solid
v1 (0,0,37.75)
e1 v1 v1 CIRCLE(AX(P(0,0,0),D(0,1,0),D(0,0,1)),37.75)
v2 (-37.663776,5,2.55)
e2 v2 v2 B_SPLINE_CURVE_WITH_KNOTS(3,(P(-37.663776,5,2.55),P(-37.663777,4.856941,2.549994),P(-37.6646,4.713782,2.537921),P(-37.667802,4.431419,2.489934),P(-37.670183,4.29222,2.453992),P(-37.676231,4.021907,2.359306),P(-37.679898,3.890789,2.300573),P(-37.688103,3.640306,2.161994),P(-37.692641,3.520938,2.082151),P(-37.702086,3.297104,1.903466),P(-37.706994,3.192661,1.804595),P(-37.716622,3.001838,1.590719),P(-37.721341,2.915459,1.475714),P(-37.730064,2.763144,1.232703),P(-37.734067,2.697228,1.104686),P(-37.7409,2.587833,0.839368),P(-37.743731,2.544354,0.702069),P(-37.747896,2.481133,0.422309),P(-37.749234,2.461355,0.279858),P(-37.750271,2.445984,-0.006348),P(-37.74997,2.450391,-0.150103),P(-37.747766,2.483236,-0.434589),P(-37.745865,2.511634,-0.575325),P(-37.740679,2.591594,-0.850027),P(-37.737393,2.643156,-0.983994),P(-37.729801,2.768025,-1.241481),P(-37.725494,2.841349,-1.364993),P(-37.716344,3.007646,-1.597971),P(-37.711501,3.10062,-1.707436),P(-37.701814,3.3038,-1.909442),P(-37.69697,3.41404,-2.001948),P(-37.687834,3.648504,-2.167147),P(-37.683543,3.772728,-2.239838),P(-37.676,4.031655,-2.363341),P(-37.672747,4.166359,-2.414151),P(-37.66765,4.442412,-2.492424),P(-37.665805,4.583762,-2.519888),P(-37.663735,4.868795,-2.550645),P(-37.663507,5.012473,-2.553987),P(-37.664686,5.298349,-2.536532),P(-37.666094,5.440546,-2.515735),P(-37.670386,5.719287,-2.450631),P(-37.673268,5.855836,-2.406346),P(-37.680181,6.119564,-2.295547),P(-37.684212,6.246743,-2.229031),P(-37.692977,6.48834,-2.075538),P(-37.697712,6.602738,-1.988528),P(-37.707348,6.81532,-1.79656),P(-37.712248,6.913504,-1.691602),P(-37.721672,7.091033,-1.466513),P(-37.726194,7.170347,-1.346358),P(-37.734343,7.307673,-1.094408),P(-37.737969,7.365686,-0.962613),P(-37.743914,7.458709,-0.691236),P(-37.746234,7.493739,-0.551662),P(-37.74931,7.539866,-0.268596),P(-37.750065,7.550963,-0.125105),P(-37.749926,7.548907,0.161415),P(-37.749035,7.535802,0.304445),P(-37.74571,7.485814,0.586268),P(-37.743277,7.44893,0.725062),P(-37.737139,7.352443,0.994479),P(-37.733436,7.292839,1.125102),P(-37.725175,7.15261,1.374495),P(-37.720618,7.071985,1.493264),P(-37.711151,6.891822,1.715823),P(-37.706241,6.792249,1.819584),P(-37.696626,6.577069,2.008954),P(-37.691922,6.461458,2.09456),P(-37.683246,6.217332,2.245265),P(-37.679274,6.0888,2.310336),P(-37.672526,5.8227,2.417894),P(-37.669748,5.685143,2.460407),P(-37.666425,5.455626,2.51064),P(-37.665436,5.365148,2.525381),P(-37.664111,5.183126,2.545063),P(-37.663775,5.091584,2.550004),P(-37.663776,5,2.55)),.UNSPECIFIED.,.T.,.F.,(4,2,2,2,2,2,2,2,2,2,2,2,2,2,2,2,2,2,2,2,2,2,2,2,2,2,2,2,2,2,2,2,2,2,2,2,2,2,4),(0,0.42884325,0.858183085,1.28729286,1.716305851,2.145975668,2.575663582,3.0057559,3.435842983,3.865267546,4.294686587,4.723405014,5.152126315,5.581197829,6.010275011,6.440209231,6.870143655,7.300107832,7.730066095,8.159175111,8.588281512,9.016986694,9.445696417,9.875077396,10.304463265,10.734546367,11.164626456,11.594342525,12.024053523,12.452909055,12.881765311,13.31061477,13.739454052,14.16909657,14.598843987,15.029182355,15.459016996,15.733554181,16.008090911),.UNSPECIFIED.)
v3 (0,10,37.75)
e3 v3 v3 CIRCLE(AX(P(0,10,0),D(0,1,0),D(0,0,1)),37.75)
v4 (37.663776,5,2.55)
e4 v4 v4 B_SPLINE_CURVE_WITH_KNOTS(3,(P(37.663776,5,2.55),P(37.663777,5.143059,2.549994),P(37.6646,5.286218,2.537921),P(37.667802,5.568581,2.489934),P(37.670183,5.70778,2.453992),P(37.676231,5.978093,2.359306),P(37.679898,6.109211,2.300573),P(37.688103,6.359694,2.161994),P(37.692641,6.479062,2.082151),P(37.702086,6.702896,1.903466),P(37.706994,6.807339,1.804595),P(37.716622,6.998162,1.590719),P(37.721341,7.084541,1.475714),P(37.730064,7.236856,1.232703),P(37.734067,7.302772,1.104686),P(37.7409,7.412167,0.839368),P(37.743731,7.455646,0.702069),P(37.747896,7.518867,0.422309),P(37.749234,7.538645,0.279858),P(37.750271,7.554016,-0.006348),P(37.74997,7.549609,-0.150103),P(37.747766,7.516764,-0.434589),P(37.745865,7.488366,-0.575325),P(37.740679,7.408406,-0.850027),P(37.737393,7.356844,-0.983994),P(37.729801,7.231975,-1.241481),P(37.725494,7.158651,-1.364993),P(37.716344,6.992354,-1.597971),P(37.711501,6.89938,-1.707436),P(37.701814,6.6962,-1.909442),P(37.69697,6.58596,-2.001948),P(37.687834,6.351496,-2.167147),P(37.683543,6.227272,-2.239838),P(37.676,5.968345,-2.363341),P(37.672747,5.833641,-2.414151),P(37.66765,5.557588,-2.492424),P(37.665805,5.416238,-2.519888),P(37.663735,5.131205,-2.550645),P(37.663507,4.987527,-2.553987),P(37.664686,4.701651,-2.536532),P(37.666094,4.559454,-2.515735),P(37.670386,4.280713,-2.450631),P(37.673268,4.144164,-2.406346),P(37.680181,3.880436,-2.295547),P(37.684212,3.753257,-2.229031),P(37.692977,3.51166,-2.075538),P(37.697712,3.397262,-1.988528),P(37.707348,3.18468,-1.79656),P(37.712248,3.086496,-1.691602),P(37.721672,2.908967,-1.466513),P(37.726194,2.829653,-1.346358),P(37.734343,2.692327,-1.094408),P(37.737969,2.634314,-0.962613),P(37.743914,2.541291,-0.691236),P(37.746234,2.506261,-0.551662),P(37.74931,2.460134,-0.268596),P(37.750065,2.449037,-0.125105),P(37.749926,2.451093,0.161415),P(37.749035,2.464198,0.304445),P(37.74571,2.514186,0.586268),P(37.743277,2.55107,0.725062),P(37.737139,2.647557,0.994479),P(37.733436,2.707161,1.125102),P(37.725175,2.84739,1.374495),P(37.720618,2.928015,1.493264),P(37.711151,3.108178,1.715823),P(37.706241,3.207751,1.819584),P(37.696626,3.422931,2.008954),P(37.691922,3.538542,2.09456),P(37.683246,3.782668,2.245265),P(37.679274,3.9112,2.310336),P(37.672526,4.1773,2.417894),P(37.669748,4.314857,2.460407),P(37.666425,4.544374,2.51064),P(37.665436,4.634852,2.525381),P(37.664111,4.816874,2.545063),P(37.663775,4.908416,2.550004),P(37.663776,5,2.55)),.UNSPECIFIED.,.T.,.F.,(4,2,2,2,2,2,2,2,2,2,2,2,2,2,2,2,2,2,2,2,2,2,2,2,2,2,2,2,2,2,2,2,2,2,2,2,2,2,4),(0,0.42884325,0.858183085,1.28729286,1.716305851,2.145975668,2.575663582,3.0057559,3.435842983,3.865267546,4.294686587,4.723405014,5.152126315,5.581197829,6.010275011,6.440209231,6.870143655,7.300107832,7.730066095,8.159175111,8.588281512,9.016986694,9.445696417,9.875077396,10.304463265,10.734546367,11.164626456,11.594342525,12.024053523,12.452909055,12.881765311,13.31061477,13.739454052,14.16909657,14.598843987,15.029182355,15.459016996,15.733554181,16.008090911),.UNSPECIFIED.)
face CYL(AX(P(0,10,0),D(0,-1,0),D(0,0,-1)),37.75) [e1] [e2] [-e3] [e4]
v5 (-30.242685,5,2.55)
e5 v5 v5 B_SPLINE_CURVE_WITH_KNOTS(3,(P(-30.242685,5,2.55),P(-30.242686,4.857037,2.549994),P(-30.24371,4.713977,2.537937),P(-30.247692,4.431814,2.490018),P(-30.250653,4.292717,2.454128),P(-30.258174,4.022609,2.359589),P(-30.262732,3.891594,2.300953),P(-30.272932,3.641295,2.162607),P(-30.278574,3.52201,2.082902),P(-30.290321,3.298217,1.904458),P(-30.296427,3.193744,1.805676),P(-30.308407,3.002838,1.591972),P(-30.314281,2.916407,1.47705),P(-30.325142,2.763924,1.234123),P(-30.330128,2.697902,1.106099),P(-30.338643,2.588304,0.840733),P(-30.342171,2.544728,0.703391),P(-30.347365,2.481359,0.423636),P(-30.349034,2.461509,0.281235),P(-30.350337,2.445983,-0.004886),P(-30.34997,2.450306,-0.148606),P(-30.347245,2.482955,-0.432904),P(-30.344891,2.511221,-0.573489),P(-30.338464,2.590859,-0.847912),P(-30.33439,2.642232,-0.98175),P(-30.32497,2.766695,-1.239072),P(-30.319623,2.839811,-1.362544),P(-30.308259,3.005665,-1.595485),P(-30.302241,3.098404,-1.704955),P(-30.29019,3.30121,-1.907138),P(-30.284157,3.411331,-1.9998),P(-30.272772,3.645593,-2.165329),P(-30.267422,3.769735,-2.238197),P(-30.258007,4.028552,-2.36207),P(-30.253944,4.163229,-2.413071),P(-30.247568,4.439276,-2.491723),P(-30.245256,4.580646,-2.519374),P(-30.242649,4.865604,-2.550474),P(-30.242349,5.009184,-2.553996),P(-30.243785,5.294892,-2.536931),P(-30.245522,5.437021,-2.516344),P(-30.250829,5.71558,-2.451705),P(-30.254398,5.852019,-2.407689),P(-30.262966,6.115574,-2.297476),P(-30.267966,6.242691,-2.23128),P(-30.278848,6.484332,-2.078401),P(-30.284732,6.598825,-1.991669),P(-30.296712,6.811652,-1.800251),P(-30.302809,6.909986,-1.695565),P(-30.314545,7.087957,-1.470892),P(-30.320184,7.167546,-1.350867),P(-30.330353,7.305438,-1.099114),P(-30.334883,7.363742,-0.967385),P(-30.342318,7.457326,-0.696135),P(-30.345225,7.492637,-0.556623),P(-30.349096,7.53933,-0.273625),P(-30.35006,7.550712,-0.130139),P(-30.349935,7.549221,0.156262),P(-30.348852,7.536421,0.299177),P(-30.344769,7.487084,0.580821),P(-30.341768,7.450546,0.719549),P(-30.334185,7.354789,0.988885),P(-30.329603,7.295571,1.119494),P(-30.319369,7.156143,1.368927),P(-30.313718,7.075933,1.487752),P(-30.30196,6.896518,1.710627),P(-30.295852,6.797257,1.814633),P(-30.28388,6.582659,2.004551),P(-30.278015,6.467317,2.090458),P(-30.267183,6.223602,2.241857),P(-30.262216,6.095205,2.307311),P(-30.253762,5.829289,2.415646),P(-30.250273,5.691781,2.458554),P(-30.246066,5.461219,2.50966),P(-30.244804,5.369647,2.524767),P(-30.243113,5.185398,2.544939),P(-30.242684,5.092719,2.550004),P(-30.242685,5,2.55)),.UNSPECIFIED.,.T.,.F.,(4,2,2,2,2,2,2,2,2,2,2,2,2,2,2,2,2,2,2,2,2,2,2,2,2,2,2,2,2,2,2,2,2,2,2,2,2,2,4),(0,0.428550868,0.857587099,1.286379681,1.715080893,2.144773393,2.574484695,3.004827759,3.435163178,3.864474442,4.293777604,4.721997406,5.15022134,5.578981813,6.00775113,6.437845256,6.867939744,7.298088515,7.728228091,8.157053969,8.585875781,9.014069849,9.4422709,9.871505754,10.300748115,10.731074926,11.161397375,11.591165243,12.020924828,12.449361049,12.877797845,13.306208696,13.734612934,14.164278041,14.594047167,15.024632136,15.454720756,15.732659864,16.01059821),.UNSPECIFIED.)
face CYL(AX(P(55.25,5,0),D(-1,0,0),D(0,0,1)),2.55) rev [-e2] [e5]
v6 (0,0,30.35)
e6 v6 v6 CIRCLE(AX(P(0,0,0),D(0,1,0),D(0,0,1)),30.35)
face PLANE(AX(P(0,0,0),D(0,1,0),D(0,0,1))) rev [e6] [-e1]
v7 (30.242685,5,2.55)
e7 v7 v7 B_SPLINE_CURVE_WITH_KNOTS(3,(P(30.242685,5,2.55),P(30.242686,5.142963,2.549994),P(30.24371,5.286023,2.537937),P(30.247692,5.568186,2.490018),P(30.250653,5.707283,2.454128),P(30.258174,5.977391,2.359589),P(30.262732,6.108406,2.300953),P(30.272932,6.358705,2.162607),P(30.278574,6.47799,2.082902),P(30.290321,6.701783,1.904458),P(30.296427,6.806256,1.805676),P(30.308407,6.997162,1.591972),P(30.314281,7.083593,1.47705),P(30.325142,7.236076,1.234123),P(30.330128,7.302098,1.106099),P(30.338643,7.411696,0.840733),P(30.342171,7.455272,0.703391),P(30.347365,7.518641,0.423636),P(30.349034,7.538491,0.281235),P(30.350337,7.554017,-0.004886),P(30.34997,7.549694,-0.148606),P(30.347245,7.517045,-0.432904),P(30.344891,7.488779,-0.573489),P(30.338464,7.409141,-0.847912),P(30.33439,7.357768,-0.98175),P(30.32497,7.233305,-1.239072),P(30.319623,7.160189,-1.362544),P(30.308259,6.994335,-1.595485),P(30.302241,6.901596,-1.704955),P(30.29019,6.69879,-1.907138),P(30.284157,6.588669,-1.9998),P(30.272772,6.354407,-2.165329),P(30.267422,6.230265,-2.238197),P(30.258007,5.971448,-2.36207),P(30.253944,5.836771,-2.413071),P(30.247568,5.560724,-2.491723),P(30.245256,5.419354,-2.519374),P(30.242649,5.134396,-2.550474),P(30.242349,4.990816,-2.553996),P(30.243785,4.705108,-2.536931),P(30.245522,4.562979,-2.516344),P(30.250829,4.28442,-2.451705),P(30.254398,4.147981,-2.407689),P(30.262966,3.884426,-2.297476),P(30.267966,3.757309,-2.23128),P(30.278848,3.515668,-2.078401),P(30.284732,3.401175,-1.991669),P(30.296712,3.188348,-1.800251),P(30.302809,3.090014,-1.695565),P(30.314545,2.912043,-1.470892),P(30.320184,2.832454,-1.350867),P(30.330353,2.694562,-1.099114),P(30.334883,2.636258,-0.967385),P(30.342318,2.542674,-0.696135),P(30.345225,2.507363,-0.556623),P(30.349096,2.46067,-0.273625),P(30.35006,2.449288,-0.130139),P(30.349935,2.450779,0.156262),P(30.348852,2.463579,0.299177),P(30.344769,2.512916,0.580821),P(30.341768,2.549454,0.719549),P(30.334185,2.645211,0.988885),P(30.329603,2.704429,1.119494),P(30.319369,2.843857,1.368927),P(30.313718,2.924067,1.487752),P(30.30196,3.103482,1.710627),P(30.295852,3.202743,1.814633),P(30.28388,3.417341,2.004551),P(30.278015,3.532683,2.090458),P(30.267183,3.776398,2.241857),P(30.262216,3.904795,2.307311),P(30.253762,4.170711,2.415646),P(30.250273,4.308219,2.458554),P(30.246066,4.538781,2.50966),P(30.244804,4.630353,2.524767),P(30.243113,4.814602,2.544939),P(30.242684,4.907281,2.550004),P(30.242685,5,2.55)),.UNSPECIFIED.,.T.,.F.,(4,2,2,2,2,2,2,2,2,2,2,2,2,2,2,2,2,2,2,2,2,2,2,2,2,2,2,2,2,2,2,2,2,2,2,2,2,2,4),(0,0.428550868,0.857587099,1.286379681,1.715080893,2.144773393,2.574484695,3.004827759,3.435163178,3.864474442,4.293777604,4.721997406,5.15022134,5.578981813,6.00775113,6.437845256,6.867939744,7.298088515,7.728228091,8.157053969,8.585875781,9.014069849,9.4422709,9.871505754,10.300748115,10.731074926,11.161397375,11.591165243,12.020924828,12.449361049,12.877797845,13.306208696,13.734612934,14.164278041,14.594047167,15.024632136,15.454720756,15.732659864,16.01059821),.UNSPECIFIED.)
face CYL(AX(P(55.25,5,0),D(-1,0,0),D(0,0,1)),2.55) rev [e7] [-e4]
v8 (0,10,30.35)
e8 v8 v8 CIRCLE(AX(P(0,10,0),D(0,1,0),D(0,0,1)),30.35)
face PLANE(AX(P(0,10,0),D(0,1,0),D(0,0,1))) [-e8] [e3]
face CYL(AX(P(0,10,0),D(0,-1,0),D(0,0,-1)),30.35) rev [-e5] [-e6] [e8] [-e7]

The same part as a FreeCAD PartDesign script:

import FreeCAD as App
import Part
import Sketcher

V = App.Vector
Q = App.Units.Quantity

doc = App.newDocument("Part")
body = doc.addObject("PartDesign::Body", "Body")

# Sketch on XZ plane
sketch1 = body.newObject("Sketcher::SketchObject", "Sketch")
sketch1.AttachmentSupport = (doc.getObject("XZ_Plane"), [""])
sketch1.MapMode = "FlatFace"
sketch1.addGeometry(Part.Circle(V(0, 0, 0), V(0, 0, 1), 38), False)
sketch1.addGeometry(Part.Circle(V(0, 0, 0), V(0, 0, 1), 30), False)
sketch1.addConstraint(Sketcher.Constraint("Coincident", 0, 3, -1, 1))
sketch1.addConstraint(Sketcher.Constraint("Coincident", 1, 3, -1, 1))
sketch1.addConstraint(Sketcher.Constraint("Diameter", 0, Q("75.5 mm")))
sketch1.addConstraint(Sketcher.Constraint("Diameter", 1, Q("60.7 mm")))
pad1 = body.newObject("PartDesign::Pad", "Pad")
pad1.Profile = sketch1
pad1.Length = 10
pad1.Reversed = True

# Sketch on YZ plane
sketch2 = body.newObject("Sketcher::SketchObject", "Sketch001")
sketch2.AttachmentSupport = (doc.getObject("YZ_Plane"), [""])
sketch2.MapMode = "FlatFace"
sketch2.AttachmentOffset = App.Placement(V(0, 0, -37.75), App.Rotation())
sketch2.addGeometry(Part.Circle(V(5, 0, 0), V(0, 0, 1), 2.5), False)
sketch2.addConstraint(Sketcher.Constraint("PointOnObject", 0, 3, -1))
sketch2.addConstraint(Sketcher.Constraint("Diameter", 0, Q("5.1 mm")))
sketch2.addConstraint(Sketcher.Constraint("DistanceX", -1, 1, 0, 3, Q("5 mm")))
pocket1 = body.newObject("PartDesign::Pocket", "Pocket")
pocket1.Profile = sketch2
pocket1.Length = 93
pocket1.Reversed = True

doc.recompute()
